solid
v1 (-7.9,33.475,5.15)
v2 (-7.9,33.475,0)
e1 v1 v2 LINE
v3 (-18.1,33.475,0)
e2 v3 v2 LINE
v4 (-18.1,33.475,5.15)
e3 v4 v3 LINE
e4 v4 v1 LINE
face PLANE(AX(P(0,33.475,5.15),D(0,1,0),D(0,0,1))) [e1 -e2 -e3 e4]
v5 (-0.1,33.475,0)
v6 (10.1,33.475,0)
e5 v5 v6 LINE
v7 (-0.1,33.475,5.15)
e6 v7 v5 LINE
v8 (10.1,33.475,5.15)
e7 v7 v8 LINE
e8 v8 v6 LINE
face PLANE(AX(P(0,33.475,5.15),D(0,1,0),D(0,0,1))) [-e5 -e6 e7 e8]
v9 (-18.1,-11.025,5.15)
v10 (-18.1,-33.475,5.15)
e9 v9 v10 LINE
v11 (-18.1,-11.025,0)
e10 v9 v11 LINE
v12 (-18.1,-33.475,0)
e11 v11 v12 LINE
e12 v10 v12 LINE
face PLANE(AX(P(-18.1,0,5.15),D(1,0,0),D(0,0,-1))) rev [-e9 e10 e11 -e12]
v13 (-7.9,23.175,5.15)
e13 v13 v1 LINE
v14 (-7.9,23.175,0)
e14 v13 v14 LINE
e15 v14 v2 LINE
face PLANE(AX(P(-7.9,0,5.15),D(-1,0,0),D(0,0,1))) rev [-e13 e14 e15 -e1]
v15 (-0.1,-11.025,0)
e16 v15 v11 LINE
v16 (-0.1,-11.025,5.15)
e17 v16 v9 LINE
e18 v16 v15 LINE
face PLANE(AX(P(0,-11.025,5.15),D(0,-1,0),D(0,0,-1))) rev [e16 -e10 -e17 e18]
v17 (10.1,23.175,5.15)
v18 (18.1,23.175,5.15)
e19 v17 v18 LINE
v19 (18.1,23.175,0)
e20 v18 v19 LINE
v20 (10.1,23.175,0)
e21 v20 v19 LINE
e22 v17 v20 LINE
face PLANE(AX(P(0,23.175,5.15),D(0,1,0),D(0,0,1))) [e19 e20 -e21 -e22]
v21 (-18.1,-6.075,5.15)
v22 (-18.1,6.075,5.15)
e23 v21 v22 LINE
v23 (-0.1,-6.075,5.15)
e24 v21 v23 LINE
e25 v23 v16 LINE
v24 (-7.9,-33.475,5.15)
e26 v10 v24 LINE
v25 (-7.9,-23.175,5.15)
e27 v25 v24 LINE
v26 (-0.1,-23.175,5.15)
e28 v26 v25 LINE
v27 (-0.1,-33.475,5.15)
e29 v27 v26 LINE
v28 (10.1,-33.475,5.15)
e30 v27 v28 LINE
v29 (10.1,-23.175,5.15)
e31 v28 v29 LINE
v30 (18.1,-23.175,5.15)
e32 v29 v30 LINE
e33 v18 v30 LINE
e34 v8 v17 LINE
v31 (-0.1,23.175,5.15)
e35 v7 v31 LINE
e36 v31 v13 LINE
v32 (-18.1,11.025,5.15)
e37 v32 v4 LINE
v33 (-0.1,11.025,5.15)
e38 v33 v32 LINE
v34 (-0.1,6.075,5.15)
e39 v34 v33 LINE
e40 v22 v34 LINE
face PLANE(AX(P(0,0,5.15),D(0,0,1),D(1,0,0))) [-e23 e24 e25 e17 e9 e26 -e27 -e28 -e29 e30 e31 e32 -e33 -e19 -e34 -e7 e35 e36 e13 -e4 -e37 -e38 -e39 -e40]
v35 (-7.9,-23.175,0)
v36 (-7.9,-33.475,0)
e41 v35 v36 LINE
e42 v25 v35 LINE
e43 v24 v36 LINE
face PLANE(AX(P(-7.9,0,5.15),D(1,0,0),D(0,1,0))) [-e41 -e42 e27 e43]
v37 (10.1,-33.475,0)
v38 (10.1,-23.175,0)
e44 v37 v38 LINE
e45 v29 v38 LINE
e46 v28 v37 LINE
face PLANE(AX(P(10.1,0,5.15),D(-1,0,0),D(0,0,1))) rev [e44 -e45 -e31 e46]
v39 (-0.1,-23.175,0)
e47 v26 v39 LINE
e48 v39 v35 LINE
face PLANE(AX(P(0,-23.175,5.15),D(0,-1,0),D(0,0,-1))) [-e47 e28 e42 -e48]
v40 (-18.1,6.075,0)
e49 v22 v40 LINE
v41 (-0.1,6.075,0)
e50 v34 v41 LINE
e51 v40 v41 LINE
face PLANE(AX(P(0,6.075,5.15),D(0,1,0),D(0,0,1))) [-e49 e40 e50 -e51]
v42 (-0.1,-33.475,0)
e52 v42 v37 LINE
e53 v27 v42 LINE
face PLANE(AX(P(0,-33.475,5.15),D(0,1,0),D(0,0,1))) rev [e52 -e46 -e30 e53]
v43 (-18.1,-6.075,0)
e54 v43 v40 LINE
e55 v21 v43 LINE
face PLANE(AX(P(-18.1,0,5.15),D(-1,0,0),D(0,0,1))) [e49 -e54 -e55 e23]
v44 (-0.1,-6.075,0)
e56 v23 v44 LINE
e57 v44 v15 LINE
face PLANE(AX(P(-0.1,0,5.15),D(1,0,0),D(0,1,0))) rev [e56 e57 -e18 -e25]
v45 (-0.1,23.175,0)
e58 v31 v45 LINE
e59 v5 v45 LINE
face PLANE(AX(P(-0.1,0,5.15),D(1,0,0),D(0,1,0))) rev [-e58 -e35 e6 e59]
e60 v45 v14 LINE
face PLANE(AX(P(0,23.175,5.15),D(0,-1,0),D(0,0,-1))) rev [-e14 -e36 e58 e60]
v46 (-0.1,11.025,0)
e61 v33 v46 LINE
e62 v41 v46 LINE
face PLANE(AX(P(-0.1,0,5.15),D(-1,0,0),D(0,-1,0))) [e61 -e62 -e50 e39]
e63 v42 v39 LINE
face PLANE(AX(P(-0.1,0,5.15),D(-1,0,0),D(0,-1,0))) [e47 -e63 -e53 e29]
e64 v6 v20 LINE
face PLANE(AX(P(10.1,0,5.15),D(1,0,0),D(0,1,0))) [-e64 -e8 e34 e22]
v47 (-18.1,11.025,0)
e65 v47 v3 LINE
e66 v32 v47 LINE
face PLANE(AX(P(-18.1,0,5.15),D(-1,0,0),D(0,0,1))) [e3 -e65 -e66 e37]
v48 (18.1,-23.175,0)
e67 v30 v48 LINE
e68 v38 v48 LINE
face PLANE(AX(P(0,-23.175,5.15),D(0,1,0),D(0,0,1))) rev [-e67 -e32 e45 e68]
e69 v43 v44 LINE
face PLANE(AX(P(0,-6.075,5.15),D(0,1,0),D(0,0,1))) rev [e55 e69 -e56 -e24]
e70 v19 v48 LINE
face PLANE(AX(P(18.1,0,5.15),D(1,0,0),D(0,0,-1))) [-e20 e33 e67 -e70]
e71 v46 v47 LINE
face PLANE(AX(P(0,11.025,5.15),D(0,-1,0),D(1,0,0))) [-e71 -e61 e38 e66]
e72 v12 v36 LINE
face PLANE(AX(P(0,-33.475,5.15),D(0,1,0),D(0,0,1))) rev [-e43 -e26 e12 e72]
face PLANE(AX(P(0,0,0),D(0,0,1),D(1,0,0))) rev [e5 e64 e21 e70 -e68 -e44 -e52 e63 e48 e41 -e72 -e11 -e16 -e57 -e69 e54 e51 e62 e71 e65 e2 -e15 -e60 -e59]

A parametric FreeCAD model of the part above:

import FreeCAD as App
import Part
import Sketcher
from FreeCAD import Vector
Q = App.Units.Quantity

doc = App.newDocument("Part")
body = doc.addObject("PartDesign::Body", "Body")

# Sketch on XY plane
sketch1 = body.newObject("Sketcher::SketchObject", "Sketch")
sketch1.AttachmentSupport = (doc.getObject("XY_Plane"), [""])
sketch1.MapMode = "FlatFace"
sketch1.addGeometry([
    Part.LineSegment(Vector(-0.1, -6.075, 0), Vector(-0.1, -11.025, 0)),  # 0
    Part.LineSegment(Vector(-0.1, -11.025, 0), Vector(-18.1, -11.025, 0)),  # 1
    Part.LineSegment(Vector(-18.1, -11.025, 0), Vector(-18.1, -33.475, 0)),  # 2
    Part.LineSegment(Vector(-18.1, -33.475, 0), Vector(-7.9, -33.475, 0)),  # 3
    Part.LineSegment(Vector(-7.9, -33.475, 0), Vector(-7.9, -23.175, 0)),  # 4
    Part.LineSegment(Vector(-7.9, -23.175, 0), Vector(-0.1, -23.175, 0)),  # 5
    Part.LineSegment(Vector(-0.1, -23.175, 0), Vector(-0.1, -33.475, 0)),  # 6
    Part.LineSegment(Vector(-0.1, -33.475, 0), Vector(10.1, -33.475, 0)),  # 7
    Part.LineSegment(Vector(10.1, -33.475, 0), Vector(10.1, -23.175, 0)),  # 8
    Part.LineSegment(Vector(10.1, -23.175, 0), Vector(18.1, -23.175, 0)),  # 9
    Part.LineSegment(Vector(18.1, -23.175, 0), Vector(18.1, 23.175, 0)),  # 10
    Part.LineSegment(Vector(18.1, 23.175, 0), Vector(10.1, 23.175, 0)),  # 11
    Part.LineSegment(Vector(10.1, 23.175, 0), Vector(10.1, 33.475, 0)),  # 12
    Part.LineSegment(Vector(10.1, 33.475, 0), Vector(-0.1, 33.475, 0)),  # 13
    Part.LineSegment(Vector(-0.1, 33.475, 0), Vector(-0.1, 23.175, 0)),  # 14
    Part.LineSegment(Vector(-0.1, 23.175, 0), Vector(-7.9, 23.175, 0)),  # 15
    Part.LineSegment(Vector(-7.9, 23.175, 0), Vector(-7.9, 33.475, 0)),  # 16
    Part.LineSegment(Vector(-7.9, 33.475, 0), Vector(-18.1, 33.475, 0)),  # 17
    Part.LineSegment(Vector(-18.1, 33.475, 0), Vector(-18.1, 11.025, 0)),  # 18
    Part.LineSegment(Vector(-18.1, 11.025, 0), Vector(-0.1, 11.025, 0)),  # 19
    Part.LineSegment(Vector(-0.1, 11.025, 0), Vector(-0.1, 6.075, 0)),  # 20
    Part.LineSegment(Vector(-0.1, 6.075, 0), Vector(-18.1, 6.075, 0)),  # 21
    Part.LineSegment(Vector(-18.1, 6.075, 0), Vector(-18.1, -6.075, 0)),  # 22
    Part.LineSegment(Vector(-18.1, -6.075, 0), Vector(-0.1, -6.075, 0)),  # 23
], False)
sketch1.addConstraint([
    Sketcher.Constraint("Coincident", 0, 2, 1, 1),
    Sketcher.Constraint("Coincident", 1, 2, 2, 1),
    Sketcher.Constraint("Coincident", 2, 2, 3, 1),
    Sketcher.Constraint("Coincident", 3, 2, 4, 1),
    Sketcher.Constraint("Coincident", 4, 2, 5, 1),
    Sketcher.Constraint("Coincident", 5, 2, 6, 1),
    Sketcher.Constraint("Coincident", 6, 2, 7, 1),
    Sketcher.Constraint("Coincident", 7, 2, 8, 1),
    Sketcher.Constraint("Coincident", 8, 2, 9, 1),
    Sketcher.Constraint("Coincident", 9, 2, 10, 1),
    Sketcher.Constraint("Coincident", 10, 2, 11, 1),
    Sketcher.Constraint("Coincident", 11, 2, 12, 1),
    Sketcher.Constraint("Coincident", 12, 2, 13, 1),
    Sketcher.Constraint("Coincident", 13, 2, 14, 1),
    Sketcher.Constraint("Coincident", 14, 2, 15, 1),
    Sketcher.Constraint("Coincident", 15, 2, 16, 1),
    Sketcher.Constraint("Coincident", 16, 2, 17, 1),
    Sketcher.Constraint("Coincident", 17, 2, 18, 1),
    Sketcher.Constraint("Coincident", 18, 2, 19, 1),
    Sketcher.Constraint("Coincident", 19, 2, 20, 1),
    Sketcher.Constraint("Coincident", 20, 2, 21, 1),
    Sketcher.Constraint("Coincident", 21, 2, 22, 1),
    Sketcher.Constraint("Coincident", 22, 2, 23, 1),
    Sketcher.Constraint("Coincident", 23, 2, 0, 1),
    Sketcher.Constraint("Vertical", 0),
    Sketcher.Constraint("Horizontal", 1),
    Sketcher.Constraint("Vertical", 2),
    Sketcher.Constraint("Horizontal", 3),
    Sketcher.Constraint("Vertical", 4),
    Sketcher.Constraint("Horizontal", 5),
    Sketcher.Constraint("Vertical", 6),
    Sketcher.Constraint("Horizontal", 7),
    Sketcher.Constraint("Vertical", 8),
    Sketcher.Constraint("Horizontal", 9),
    Sketcher.Constraint("Vertical", 10),
    Sketcher.Constraint("Horizontal", 11),
    Sketcher.Constraint("Vertical", 12),
    Sketcher.Constraint("Horizontal", 13),
    Sketcher.Constraint("Vertical", 14),
    Sketcher.Constraint("Horizontal", 15),
    Sketcher.Constraint("Vertical", 16),
    Sketcher.Constraint("Horizontal", 17),
    Sketcher.Constraint("Vertical", 18),
    Sketcher.Constraint("Horizontal", 19),
    Sketcher.Constraint("Vertical", 20),
    Sketcher.Constraint("Horizontal", 21),
    Sketcher.Constraint("Vertical", 22),
    Sketcher.Constraint("Horizontal", 23),
    Sketcher.Constraint("Symmetric", 8, 2, 11, 2, -1),
    Sketcher.Constraint("Symmetric", 6, 2, 13, 2, -1),
    Sketcher.Constraint("Symmetric", 4, 2, 15, 2, -1),
    Sketcher.Constraint("Symmetric", 2, 2, 17, 2, -1),
    Sketcher.Constraint("Symmetric", 0, 2, 19, 2, -1),
    Sketcher.Constraint("Horizontal", 3, 2, 6, 2),
    Sketcher.Constraint("Horizontal", 5, 2, 8, 2),
    Sketcher.Constraint("Vertical", 0, 2, 5, 2),
    Sketcher.Constraint("Vertical", 18, 2, 21, 2),
    Sketcher.Constraint("Equal", 3, 7),
    Sketcher.Constraint("Equal", 0, 20),
    Sketcher.Constraint("DistanceX", 1, 2, 1, 1, Q("18 mm")),
    Sketcher.Constraint("DistanceX", 9, 1, 9, 2, Q("8 mm")),
    Sketcher.Constraint("DistanceX", 3, 1, 3, 2, Q("10.2 mm")),
    Sketcher.Constraint("DistanceY", 4, 1, 4, 2, Q("10.3 mm")),
    Sketcher.Constraint("DistanceY", 0, 2, 0, 1, Q("4.95 mm")),
    Sketcher.Constraint("DistanceY", 2, 2, 2, 1, Q("22.45 mm")),
    Sketcher.Constraint("DistanceY", 10, 1, 10, 2, Q("46.35 mm")),
    Sketcher.Constraint("DistanceX", 0, 2, -1, 1, Q("0.1 mm")),
])
pad1 = body.newObject("PartDesign::Pad", "Pad")
pad1.Profile = sketch1
pad1.Length = 5.15

doc.recompute()
